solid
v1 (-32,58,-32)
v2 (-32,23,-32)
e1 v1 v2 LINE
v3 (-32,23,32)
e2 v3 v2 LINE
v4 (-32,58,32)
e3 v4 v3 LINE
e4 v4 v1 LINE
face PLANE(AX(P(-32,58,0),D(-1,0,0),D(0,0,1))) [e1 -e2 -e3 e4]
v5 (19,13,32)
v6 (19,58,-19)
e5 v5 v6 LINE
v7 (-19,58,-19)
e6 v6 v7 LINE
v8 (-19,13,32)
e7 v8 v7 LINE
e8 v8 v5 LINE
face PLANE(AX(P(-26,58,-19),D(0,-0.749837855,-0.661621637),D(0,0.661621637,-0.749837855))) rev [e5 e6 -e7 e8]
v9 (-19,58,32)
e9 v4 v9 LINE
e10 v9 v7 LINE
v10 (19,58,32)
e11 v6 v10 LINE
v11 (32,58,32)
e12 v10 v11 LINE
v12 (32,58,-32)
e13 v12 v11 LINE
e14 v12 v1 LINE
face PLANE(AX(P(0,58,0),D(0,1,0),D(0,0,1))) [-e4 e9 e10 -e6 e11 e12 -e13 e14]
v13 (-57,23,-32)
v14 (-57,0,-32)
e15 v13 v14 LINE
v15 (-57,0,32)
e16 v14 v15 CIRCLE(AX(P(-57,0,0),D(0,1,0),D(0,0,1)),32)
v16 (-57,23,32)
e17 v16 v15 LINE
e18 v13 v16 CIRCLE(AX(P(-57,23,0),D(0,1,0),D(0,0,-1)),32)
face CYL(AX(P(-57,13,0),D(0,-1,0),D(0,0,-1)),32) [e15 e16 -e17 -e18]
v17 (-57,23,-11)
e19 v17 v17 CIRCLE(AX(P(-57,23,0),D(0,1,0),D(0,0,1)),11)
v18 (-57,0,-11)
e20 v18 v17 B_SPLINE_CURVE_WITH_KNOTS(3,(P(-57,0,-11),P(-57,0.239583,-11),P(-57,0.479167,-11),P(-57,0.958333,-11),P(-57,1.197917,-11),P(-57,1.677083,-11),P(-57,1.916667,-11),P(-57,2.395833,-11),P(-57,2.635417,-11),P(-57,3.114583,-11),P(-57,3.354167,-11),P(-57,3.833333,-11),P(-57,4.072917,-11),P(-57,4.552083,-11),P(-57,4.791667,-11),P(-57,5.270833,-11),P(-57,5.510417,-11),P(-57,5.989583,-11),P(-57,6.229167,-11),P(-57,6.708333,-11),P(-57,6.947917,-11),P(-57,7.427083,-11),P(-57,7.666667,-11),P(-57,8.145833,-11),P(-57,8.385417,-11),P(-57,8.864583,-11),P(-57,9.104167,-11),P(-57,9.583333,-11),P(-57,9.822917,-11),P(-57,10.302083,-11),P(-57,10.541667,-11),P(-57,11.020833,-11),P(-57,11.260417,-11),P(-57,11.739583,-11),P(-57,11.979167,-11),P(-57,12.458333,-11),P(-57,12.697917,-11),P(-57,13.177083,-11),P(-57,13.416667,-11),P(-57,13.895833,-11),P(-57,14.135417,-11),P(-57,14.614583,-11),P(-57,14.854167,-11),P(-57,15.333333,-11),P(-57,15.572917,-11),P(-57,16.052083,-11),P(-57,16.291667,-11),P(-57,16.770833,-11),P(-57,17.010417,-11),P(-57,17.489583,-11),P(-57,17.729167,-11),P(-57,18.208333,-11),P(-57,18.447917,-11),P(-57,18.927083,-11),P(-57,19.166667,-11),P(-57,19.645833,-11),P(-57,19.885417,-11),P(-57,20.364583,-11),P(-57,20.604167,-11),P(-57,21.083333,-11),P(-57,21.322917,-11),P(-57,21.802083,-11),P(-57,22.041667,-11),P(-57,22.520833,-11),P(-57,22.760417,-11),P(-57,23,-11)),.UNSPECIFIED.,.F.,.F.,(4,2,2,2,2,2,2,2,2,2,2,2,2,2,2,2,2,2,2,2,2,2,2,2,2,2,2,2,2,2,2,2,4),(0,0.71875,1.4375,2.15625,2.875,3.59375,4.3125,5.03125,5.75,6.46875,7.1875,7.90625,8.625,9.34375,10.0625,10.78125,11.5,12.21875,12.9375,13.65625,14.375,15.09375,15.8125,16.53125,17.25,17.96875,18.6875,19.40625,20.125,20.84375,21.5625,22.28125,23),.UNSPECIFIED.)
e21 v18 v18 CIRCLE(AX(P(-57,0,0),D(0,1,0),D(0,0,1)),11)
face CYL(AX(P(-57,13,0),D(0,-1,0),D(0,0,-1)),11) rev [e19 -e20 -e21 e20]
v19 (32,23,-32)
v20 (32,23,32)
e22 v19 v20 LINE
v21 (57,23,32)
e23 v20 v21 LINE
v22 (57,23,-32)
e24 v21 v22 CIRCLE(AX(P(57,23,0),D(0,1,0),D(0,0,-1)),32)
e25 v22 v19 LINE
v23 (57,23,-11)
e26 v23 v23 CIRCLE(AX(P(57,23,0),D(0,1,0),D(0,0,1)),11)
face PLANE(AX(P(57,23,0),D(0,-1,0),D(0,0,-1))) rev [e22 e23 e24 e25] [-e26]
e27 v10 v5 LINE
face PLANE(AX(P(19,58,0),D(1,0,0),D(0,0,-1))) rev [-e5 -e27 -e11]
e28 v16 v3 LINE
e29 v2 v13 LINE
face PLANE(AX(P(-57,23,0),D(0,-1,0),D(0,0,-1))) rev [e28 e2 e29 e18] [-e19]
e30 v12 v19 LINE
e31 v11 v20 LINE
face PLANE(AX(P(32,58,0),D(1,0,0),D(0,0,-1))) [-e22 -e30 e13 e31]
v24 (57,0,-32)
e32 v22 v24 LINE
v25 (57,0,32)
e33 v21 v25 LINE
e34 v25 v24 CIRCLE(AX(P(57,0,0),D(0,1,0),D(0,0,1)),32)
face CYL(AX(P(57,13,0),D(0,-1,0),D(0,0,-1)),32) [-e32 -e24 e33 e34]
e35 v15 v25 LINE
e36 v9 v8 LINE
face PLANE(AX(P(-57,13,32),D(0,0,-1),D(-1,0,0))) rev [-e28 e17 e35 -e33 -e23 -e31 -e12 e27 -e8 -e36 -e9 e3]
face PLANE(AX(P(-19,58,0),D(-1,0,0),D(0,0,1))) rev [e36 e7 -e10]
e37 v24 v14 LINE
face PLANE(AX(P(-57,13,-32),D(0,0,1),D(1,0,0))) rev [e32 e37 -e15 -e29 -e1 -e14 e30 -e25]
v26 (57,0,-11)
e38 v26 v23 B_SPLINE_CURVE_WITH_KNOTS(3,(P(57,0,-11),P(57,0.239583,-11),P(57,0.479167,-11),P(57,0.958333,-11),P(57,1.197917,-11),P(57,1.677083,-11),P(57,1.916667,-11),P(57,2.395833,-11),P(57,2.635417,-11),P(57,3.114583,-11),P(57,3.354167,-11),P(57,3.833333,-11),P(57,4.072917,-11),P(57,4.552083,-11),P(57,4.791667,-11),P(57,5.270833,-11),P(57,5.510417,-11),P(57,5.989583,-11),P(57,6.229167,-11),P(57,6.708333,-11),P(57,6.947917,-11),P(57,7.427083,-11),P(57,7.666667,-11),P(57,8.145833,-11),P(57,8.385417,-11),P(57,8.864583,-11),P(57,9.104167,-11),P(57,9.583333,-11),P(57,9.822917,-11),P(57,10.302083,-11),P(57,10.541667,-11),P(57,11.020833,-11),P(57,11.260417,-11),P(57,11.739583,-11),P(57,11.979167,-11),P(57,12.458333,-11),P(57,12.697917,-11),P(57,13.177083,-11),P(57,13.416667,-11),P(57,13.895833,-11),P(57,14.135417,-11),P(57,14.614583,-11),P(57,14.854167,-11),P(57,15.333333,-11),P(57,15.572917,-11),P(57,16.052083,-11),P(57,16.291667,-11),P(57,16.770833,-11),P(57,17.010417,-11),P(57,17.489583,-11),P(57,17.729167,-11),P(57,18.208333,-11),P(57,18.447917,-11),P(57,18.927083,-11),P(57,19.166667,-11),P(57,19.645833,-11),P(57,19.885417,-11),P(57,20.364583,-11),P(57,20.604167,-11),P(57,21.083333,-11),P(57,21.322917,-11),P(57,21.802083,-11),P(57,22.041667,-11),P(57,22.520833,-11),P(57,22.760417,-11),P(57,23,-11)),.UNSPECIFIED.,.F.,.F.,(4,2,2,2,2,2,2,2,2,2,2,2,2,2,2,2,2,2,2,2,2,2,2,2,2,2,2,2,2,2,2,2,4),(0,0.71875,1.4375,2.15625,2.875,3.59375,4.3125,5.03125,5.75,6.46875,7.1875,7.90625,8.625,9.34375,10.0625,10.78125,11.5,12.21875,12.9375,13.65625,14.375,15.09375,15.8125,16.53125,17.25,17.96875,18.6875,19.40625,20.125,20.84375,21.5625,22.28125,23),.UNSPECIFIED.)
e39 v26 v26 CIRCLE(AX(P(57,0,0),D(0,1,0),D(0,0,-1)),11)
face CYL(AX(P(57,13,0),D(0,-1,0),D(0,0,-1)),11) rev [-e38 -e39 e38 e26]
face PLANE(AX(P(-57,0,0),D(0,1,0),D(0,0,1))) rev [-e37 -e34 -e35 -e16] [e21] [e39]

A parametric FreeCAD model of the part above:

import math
import FreeCAD as App
import Part
import Sketcher

V = App.Vector
Q = App.Units.Quantity


def add_polygon(sketch, points):
    """Adds a closed chain of lines whose ends are joined by coincident constraints."""
    first, n = sketch.GeometryCount, len(points)
    for a, b in zip(points, points[1:] + points[:1]):
        sketch.addGeometry(Part.LineSegment(App.Vector(*a, 0), App.Vector(*b, 0)), False)
    for i in range(n):
        sketch.addConstraint(Sketcher.Constraint("Coincident", first + i, 2, first + (i + 1) % n, 1))

doc = App.newDocument("Part")
body = doc.addObject("PartDesign::Body", "Body")

# Sketch on XZ plane
sketch1 = doc.addObject("Sketcher::SketchObject", "Sketch")
body.addObject(sketch1)
sketch1.AttachmentSupport = (doc.XZ_Plane, [""])
sketch1.MapMode = "FlatFace"
sketch1.addGeometry([
    Part.LineSegment(V(57, -32, 0), V(-57, -32, 0)),  # 0
    Part.ArcOfCircle(Part.Circle(V(-57, 0, 0), V(0, 0, 1), 32), math.radians(90), math.radians(270)),  # 1
    Part.LineSegment(V(-57, 32, 0), V(57, 32, 0)),  # 2
    Part.ArcOfCircle(Part.Circle(V(57, 0, 0), V(0, 0, 1), 32), math.radians(-90), math.radians(90)),  # 3
    Part.Circle(V(57, 0, 0), V(0, 0, 1), 11),  # 4
    Part.Circle(V(-57, 0, 0), V(0, 0, 1), 11),  # 5
], False)
sketch1.addConstraint([
    Sketcher.Constraint("Tangent", 0, 2, 1, 2),
    Sketcher.Constraint("Tangent", 1, 1, 2, 1),
    Sketcher.Constraint("Tangent", 2, 2, 3, 2),
    Sketcher.Constraint("Tangent", 3, 1, 0, 1),
    Sketcher.Constraint("Horizontal", 0),
    Sketcher.Constraint("Horizontal", 2),
    Sketcher.Constraint("Coincident", 4, 3, 3, 3),
    Sketcher.Constraint("Coincident", 5, 3, 1, 3),
    Sketcher.Constraint("Equal", 4, 5),
    Sketcher.Constraint("Symmetric", 1, 3, 3, 3, -1, 1),
    Sketcher.Constraint("Diameter", 4, Q("22 mm")),
    Sketcher.Constraint("Radius", 1, Q("32 mm")),
    Sketcher.Constraint("DistanceX", 0, 2, 0, 1, Q("114 mm")),
])
pad1 = doc.addObject("PartDesign::Pad", "Pad")
body.addObject(pad1)
pad1.Profile = sketch1
pad1.Length = 13
pad1.Reversed = True

# Sketch on XZ plane
sketch2 = doc.addObject("Sketcher::SketchObject", "Sketch001")
body.addObject(sketch2)
sketch2.AttachmentSupport = (doc.XZ_Plane, [""])
sketch2.MapMode = "FlatFace"
sketch2.AttachmentOffset = App.Placement(V(0, 0, -13), App.Rotation())
add_polygon(sketch2, [(-19, -19), (-19, 32), (19, 32), (19, -19)])  # lines 0-3
sketch2.addConstraint([
    Sketcher.Constraint("Vertical", 0),
    Sketcher.Constraint("Horizontal", 1),
    Sketcher.Constraint("Vertical", 2),
    Sketcher.Constraint("Horizontal", 3),
    Sketcher.Constraint("DistanceX", 1, 1, 1, 2, Q("38 mm")),
    Sketcher.Constraint("DistanceY", 0, 1, 0, 2, Q("51 mm")),
    Sketcher.Constraint("DistanceX", 0, 2, -1, 1, Q("19 mm")),
    Sketcher.Constraint("DistanceY", -1, 1, 0, 2, Q("32 mm")),
])
pad2 = doc.addObject("PartDesign::Pad", "Pad001")
body.addObject(pad2)
pad2.Profile = sketch2
pad2.Length = 45
pad2.Reversed = True

# Sketch on YZ plane
sketch3 = doc.addObject("Sketcher::SketchObject", "Sketch002")
body.addObject(sketch3)
sketch3.AttachmentSupport = (doc.YZ_Plane, [""])
sketch3.MapMode = "FlatFace"
sketch3.AttachmentOffset = App.Placement(V(0, 0, 19), App.Rotation())
add_polygon(sketch3, [(13, 32), (58, -19), (58, 32)])  # lines 0-2
sketch3.addConstraint([
    Sketcher.Constraint("Vertical", 1),
    Sketcher.Constraint("Horizontal", 2),
    Sketcher.Constraint("DistanceX", 2, 2, 2, 1, Q("45 mm")),
    Sketcher.Constraint("DistanceY", 1, 1, 1, 2, Q("51 mm")),
    Sketcher.Constraint("DistanceX", -1, 1, 0, 2, Q("58 mm")),
    Sketcher.Constraint("DistanceY", 0, 2, -1, 1, Q("19 mm")),
])
pocket1 = doc.addObject("PartDesign::Pocket", "Pocket")
body.addObject(pocket1)
pocket1.Profile = sketch3
pocket1.Length = 45

# Sketch on XZ plane
sketch4 = doc.addObject("Sketcher::SketchObject", "Sketch003")
body.addObject(sketch4)
sketch4.AttachmentSupport = (doc.XZ_Plane, [""])
sketch4.MapMode = "FlatFace"
sketch4.AttachmentOffset = App.Placement(V(0, 0, -13), App.Rotation())
add_polygon(sketch4, [(-32, -32), (-32, 32), (-19, 32), (-19, -19), (19, -19), (19, 32), (32, 32), (32, -32)])  # lines 0-7
sketch4.addConstraint([
    Sketcher.Constraint("Vertical", 0),
    Sketcher.Constraint("Horizontal", 1),
    Sketcher.Constraint("Vertical", 2),
    Sketcher.Constraint("Horizontal", 3),
    Sketcher.Constraint("Vertical", 4),
    Sketcher.Constraint("Horizontal", 5),
    Sketcher.Constraint("Vertical", 6),
    Sketcher.Constraint("Horizontal", 7),
    Sketcher.Constraint("Symmetric", 0, 2, 6, 2, -1, 1),
    Sketcher.Constraint("Symmetric", 1, 2, 4, 2, -2),
    Sketcher.Constraint("Equal", 7, 0),
    Sketcher.Constraint("DistanceX", 1, 1, 1, 2, Q("13 mm")),
    Sketcher.Constraint("DistanceX", 3, 1, 3, 2, Q("38 mm")),
    Sketcher.Constraint("DistanceY", 2, 2, 2, 1, Q("51 mm")),
])
pad3 = doc.addObject("PartDesign::Pad", "Pad002")
body.addObject(pad3)
pad3.Profile = sketch4
pad3.Length = 45
pad3.Reversed = True

# Sketch on XZ plane
sketch5 = doc.addObject("Sketcher::SketchObject", "Sketch004")
body.addObject(sketch5)
sketch5.AttachmentSupport = (doc.XZ_Plane, [""])
sketch5.MapMode = "FlatFace"
sketch5.AttachmentOffset = App.Placement(V(0, 0, -13), App.Rotation())
sketch5.addGeometry([
    Part.LineSegment(V(-32, -32, 0), V(-57, -32, 0)),  # 0
    Part.ArcOfCircle(Part.Circle(V(-57, 0, 0), V(0, 0, 1), 32), math.radians(90), math.radians(270)),  # 1
    Part.LineSegment(V(-57, 32, 0), V(-32, 32, 0)),  # 2
    Part.LineSegment(V(-32, 32, 0), V(-32, -32, 0)),  # 3
    Part.Circle(V(-57, 0, 0), V(0, 0, 1), 11),  # 4
], False)
sketch5.addConstraint([
    Sketcher.Constraint("Tangent", 0, 2, 1, 2),
    Sketcher.Constraint("Tangent", 1, 1, 2, 1),
    Sketcher.Constraint("Coincident", 2, 2, 3, 1),
    Sketcher.Constraint("Coincident", 3, 2, 0, 1),
    Sketcher.Constraint("Horizontal", 0),
    Sketcher.Constraint("Horizontal", 2),
    Sketcher.Constraint("Vertical", 3),
    Sketcher.Constraint("Coincident", 4, 3, 1, 3),
    Sketcher.Constraint("PointOnObject", 1, 3, -1),
    Sketcher.Constraint("Diameter", 4, Q("22 mm")),
    Sketcher.Constraint("Radius", 1, Q("32 mm")),
    Sketcher.Constraint("DistanceX", 0, 2, 0, 1, Q("25 mm")),
    Sketcher.Constraint("DistanceX", 1, 3, -1, 1, Q("57 mm")),
])
pad4 = doc.addObject("PartDesign::Pad", "Pad003")
body.addObject(pad4)
pad4.Profile = sketch5
pad4.Length = 10
pad4.Reversed = True

# Sketch on XZ plane
sketch6 = doc.addObject("Sketcher::SketchObject", "Sketch005")
body.addObject(sketch6)
sketch6.AttachmentSupport = (doc.XZ_Plane, [""])
sketch6.MapMode = "FlatFace"
sketch6.AttachmentOffset = App.Placement(V(0, 0, -13), App.Rotation())
sketch6.addGeometry([
    Part.LineSegment(V(32, 32, 0), V(57, 32, 0)),  # 0
    Part.ArcOfCircle(Part.Circle(V(57, 0, 0), V(0, 0, 1), 32), math.radians(-90), math.radians(90)),  # 1
    Part.LineSegment(V(57, -32, 0), V(32, -32, 0)),  # 2
    Part.LineSegment(V(32, -32, 0), V(32, 32, 0)),  # 3
    Part.Circle(V(57, 0, 0), V(0, 0, 1), 11),  # 4
], False)
sketch6.addConstraint([
    Sketcher.Constraint("Tangent", 0, 2, 1, 2),
    Sketcher.Constraint("Tangent", 1, 1, 2, 1),
    Sketcher.Constraint("Coincident", 2, 2, 3, 1),
    Sketcher.Constraint("Coincident", 3, 2, 0, 1),
    Sketcher.Constraint("Horizontal", 0),
    Sketcher.Constraint("Horizontal", 2),
    Sketcher.Constraint("Vertical", 3),
    Sketcher.Constraint("Coincident", 4, 3, 1, 3),
    Sketcher.Constraint("PointOnObject", 1, 3, -1),
    Sketcher.Constraint("Diameter", 4, Q("22 mm")),
    Sketcher.Constraint("Radius", 1, Q("32 mm")),
    Sketcher.Constraint("DistanceX", 0, 1, 0, 2, Q("25 mm")),
    Sketcher.Constraint("DistanceX", -1, 1, 1, 3, Q("57 mm")),
])
pad5 = doc.addObject("PartDesign::Pad", "Pad004")
body.addObject(pad5)
pad5.Profile = sketch6
pad5.Length = 10
pad5.Reversed = True

doc.recompute()
